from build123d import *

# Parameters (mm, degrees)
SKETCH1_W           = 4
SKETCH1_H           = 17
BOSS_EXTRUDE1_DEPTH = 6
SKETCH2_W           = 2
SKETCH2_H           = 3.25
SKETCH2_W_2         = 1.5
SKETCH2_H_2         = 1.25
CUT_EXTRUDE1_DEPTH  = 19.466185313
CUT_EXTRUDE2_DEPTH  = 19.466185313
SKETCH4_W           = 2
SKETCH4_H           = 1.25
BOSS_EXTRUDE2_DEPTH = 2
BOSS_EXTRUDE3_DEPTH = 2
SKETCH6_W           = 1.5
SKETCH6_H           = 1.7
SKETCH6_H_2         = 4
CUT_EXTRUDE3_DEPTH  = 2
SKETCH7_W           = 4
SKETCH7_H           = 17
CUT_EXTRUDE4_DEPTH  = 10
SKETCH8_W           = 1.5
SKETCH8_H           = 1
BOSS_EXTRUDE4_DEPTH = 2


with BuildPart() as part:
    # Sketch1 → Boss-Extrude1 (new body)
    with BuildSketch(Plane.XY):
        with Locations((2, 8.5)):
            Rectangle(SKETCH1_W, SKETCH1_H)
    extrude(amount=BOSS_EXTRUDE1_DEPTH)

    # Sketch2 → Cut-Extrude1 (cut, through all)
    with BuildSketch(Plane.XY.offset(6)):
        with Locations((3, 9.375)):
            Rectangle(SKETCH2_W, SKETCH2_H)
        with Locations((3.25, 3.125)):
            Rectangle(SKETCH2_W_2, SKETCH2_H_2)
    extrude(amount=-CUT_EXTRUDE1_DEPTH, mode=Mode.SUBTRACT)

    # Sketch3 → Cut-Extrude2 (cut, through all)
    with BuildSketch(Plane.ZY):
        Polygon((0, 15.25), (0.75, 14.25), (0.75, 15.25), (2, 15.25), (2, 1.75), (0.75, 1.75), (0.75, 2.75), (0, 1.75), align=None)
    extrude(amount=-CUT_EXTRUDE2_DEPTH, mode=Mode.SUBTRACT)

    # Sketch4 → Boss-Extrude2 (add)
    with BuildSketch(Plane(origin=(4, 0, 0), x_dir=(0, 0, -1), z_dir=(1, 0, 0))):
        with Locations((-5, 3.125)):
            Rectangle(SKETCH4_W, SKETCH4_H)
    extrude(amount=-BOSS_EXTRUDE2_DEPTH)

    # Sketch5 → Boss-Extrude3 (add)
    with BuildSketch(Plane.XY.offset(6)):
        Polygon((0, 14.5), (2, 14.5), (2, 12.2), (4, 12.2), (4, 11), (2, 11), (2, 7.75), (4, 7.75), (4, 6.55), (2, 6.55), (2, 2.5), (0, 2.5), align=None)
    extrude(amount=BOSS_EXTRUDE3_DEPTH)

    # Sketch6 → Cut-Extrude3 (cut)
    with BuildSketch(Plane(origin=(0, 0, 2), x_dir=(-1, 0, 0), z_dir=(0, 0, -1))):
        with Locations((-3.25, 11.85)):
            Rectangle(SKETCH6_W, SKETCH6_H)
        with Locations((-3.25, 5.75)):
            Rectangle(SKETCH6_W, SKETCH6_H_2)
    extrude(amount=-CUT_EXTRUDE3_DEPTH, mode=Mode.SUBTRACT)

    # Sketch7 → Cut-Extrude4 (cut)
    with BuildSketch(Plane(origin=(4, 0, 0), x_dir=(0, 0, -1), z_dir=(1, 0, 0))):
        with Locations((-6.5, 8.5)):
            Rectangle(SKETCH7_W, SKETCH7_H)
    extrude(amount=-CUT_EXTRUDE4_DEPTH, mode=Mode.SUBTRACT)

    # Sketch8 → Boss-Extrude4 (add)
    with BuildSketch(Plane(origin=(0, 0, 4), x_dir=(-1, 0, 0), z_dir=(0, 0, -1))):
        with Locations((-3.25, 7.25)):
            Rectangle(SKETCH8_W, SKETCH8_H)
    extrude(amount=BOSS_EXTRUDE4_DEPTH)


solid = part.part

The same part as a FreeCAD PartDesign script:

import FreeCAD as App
import Part
import Sketcher

V = App.Vector
Q = App.Units.Quantity

doc = App.newDocument("Part")
params = doc.addObject("Spreadsheet::Sheet", "Params")
for row, (alias, value) in enumerate([
    ("sketch1_width", "4 mm"),
    ("sketch1_height", "17 mm"),
    ("pad1_length", "6 mm"),
    ("sketch2_width", "2 mm"),
    ("sketch2_width2", "1.5 mm"),
    ("sketch2_height", "3.25 mm"),
    ("sketch2_height2", "1.25 mm"),
    ("sketch3_width", "1 mm"),
    ("sketch3_width2", "13.5 mm"),
    ("sketch3_height", "1.25 mm"),
    ("sketch4_height", "2 mm"),
    ("sketch4_width", "1.25 mm"),
    ("pad2_length", "2 mm"),
    ("sketch5_width", "2 mm"),
    ("sketch5_height", "12 mm"),
    ("sketch5_height2", "1.2 mm"),
    ("sketch5_height3", "2.3 mm"),
    ("sketch5_height4", "4.05 mm"),
    ("pad3_length", "2 mm"),
    ("sketch6_height", "4 mm"),
    ("sketch6_width", "1.5 mm"),
    ("sketch6_height2", "1.7 mm"),
    ("pocket3_length", "2 mm"),
    ("sketch7_width", "17 mm"),
    ("sketch7_height", "4 mm"),
    ("pocket4_length", "10 mm"),
    ("sketch8_height", "1 mm"),
    ("sketch8_width", "1.5 mm"),
    ("pad4_length", "2 mm"),
], start=1):
    params.set(f"A{row}", alias)
    params.set(f"B{row}", "=" + value)
    params.setAlias(f"B{row}", alias)

body = doc.addObject("PartDesign::Body", "Body")

# Sketch on XY plane
sketch1 = body.newObject("Sketcher::SketchObject", "Sketch")
sketch1.AttachmentSupport = (doc.getObject("XY_Plane"), [""])
sketch1.MapMode = "FlatFace"
sketch1.addGeometry([
    Part.LineSegment(V(0, 17, 0), V(0, 0, 0)),
    Part.LineSegment(V(0, 0, 0), V(4, 0, 0)),
    Part.LineSegment(V(4, 0, 0), V(4, 17, 0)),
    Part.LineSegment(V(4, 17, 0), V(0, 17, 0)),
], False)
sketch1.addConstraint([
    Sketcher.Constraint("Coincident", 0, 2, 1, 1),
    Sketcher.Constraint("Coincident", 1, 2, 2, 1),
    Sketcher.Constraint("Coincident", 2, 2, 3, 1),
    Sketcher.Constraint("Coincident", 3, 2, 0, 1),
    Sketcher.Constraint("Vertical", 0),
    Sketcher.Constraint("Horizontal", 1),
    Sketcher.Constraint("Vertical", 2),
    Sketcher.Constraint("Horizontal", 3),
    Sketcher.Constraint("Coincident", 0, 2, -1, 1),
    Sketcher.Constraint("DistanceX", 1, 1, 1, 2, Q("4 mm")),
    Sketcher.Constraint("DistanceY", 0, 2, 0, 1, Q("17 mm")),
])
sketch1.setExpression("Constraints[9]", "Params.sketch1_width")
sketch1.setExpression("Constraints[10]", "Params.sketch1_height")
pad1 = body.newObject("PartDesign::Pad", "Pad")
pad1.Profile = sketch1
pad1.setExpression("Length", "Params.pad1_length")

# Sketch on XY plane
sketch2 = body.newObject("Sketcher::SketchObject", "Sketch001")
sketch2.AttachmentSupport = (doc.getObject("XY_Plane"), [""])
sketch2.MapMode = "FlatFace"
sketch2.AttachmentOffset = App.Placement(V(0, 0, 6), App.Rotation())
sketch2.addGeometry([
    Part.LineSegment(V(2, 11, 0), V(2, 7.8, 0)),  # 0
    Part.LineSegment(V(2, 7.8, 0), V(4, 7.8, 0)),  # 1
    Part.LineSegment(V(4, 7.8, 0), V(4, 11, 0)),  # 2
    Part.LineSegment(V(4, 11, 0), V(2, 11, 0)),  # 3
    Part.LineSegment(V(2.5, 3.8, 0), V(2.5, 2.5, 0)),  # 4
    Part.LineSegment(V(2.5, 2.5, 0), V(4, 2.5, 0)),  # 5
    Part.LineSegment(V(4, 2.5, 0), V(4, 3.8, 0)),  # 6
    Part.LineSegment(V(4, 3.8, 0), V(2.5, 3.8, 0)),  # 7
], False)
sketch2.addConstraint([
    Sketcher.Constraint("Coincident", 0, 2, 1, 1),
    Sketcher.Constraint("Coincident", 1, 2, 2, 1),
    Sketcher.Constraint("Coincident", 2, 2, 3, 1),
    Sketcher.Constraint("Coincident", 3, 2, 0, 1),
    Sketcher.Constraint("Coincident", 4, 2, 5, 1),
    Sketcher.Constraint("Coincident", 5, 2, 6, 1),
    Sketcher.Constraint("Coincident", 6, 2, 7, 1),
    Sketcher.Constraint("Coincident", 7, 2, 4, 1),
    Sketcher.Constraint("Vertical", 0),
    Sketcher.Constraint("Horizontal", 1),
    Sketcher.Constraint("Vertical", 2),
    Sketcher.Constraint("Horizontal", 3),
    Sketcher.Constraint("Vertical", 4),
    Sketcher.Constraint("Horizontal", 5),
    Sketcher.Constraint("Vertical", 6),
    Sketcher.Constraint("Horizontal", 7),
    Sketcher.Constraint("Vertical", 2, 2, 5, 2),
    Sketcher.Constraint("DistanceX", 1, 1, 1, 2, Q("2 mm")),
    Sketcher.Constraint("DistanceX", 5, 1, 5, 2, Q("1.5 mm")),
    Sketcher.Constraint("DistanceX", -1, 1, 0, 2, Q("2 mm")),
    Sketcher.Constraint("DistanceY", -1, 1, 2, 2, Q("11 mm")),
    Sketcher.Constraint("DistanceY", 6, 2, 1, 2, Q("4 mm")),
    Sketcher.Constraint("DistanceY", 0, 2, 0, 1, Q("3.25 mm")),
    Sketcher.Constraint("DistanceY", 4, 2, 4, 1, Q("1.25 mm")),
])
sketch2.setExpression("Constraints[17]", "Params.sketch2_width")
sketch2.setExpression("Constraints[18]", "Params.sketch2_width2")
sketch2.setExpression("Constraints[22]", "Params.sketch2_height")
sketch2.setExpression("Constraints[23]", "Params.sketch2_height2")
pocket1 = body.newObject("PartDesign::Pocket", "Pocket")
pocket1.Profile = sketch2
pocket1.Type = "ThroughAll"

# Sketch on YZ plane
sketch3 = body.newObject("Sketcher::SketchObject", "Sketch002")
sketch3.AttachmentSupport = (doc.getObject("YZ_Plane"), [""])
sketch3.MapMode = "FlatFace"
sketch3.addGeometry([
    Part.LineSegment(V(14.2, 0.8, 0), V(15.2, 0, 0)),  # 0
    Part.LineSegment(V(15.2, 0, 0), V(1.8, 0, 0)),  # 1
    Part.LineSegment(V(1.8, 0, 0), V(2.8, 0.8, 0)),  # 2
    Part.LineSegment(V(2.8, 0.8, 0), V(1.8, 0.8, 0)),  # 3
    Part.LineSegment(V(1.8, 0.8, 0), V(1.8, 2, 0)),  # 4
    Part.LineSegment(V(1.8, 2, 0), V(15.2, 2, 0)),  # 5
    Part.LineSegment(V(15.2, 2, 0), V(15.2, 0.8, 0)),  # 6
    Part.LineSegment(V(15.2, 0.8, 0), V(14.2, 0.8, 0)),  # 7
], False)
sketch3.addConstraint([
    Sketcher.Constraint("Coincident", 0, 2, 1, 1),
    Sketcher.Constraint("Coincident", 1, 2, 2, 1),
    Sketcher.Constraint("Coincident", 2, 2, 3, 1),
    Sketcher.Constraint("Coincident", 3, 2, 4, 1),
    Sketcher.Constraint("Coincident", 4, 2, 5, 1),
    Sketcher.Constraint("Coincident", 5, 2, 6, 1),
    Sketcher.Constraint("Coincident", 6, 2, 7, 1),
    Sketcher.Constraint("Coincident", 7, 2, 0, 1),
    Sketcher.Constraint("Horizontal", 1),
    Sketcher.Constraint("Horizontal", 3),
    Sketcher.Constraint("Vertical", 4),
    Sketcher.Constraint("Horizontal", 5),
    Sketcher.Constraint("Vertical", 6),
    Sketcher.Constraint("Horizontal", 7),
    Sketcher.Constraint("PointOnObject", 0, 2, -1),
    Sketcher.Constraint("Horizontal", 3, 2, 6, 2),
    Sketcher.Constraint("Vertical", 1, 2, 3, 2),
    Sketcher.Constraint("Vertical", 0, 2, 5, 2),
    Sketcher.Constraint("Equal", 3, 7),
    Sketcher.Constraint("DistanceX", 3, 2, 3, 1, Q("1 mm")),
    Sketcher.Constraint("DistanceX", 1, 2, 1, 1, Q("13.5 mm")),
    Sketcher.Constraint("DistanceY", -1, 1, 4, 2, Q("2 mm")),
    Sketcher.Constraint("DistanceY", 4, 1, 4, 2, Q("1.25 mm")),
    Sketcher.Constraint("DistanceX", -1, 1, 0, 2, Q("15.25 mm")),
])
sketch3.setExpression("Constraints[19]", "Params.sketch3_width")
sketch3.setExpression("Constraints[20]", "Params.sketch3_width2")
sketch3.setExpression("Constraints[22]", "Params.sketch3_height")
pocket2 = body.newObject("PartDesign::Pocket", "Pocket001")
pocket2.Profile = sketch3
pocket2.Type = "ThroughAll"
pocket2.Reversed = True

# Sketch on YZ plane
sketch4 = body.newObject("Sketcher::SketchObject", "Sketch003")
sketch4.AttachmentSupport = (doc.getObject("YZ_Plane"), [""])
sketch4.MapMode = "FlatFace"
sketch4.AttachmentOffset = App.Placement(V(0, 0, 4), App.Rotation())
sketch4.addGeometry([
    Part.LineSegment(V(3.8, 6, 0), V(2.5, 6, 0)),
    Part.LineSegment(V(2.5, 6, 0), V(2.5, 4, 0)),
    Part.LineSegment(V(2.5, 4, 0), V(3.8, 4, 0)),
    Part.LineSegment(V(3.8, 4, 0), V(3.8, 6, 0)),
], False)
sketch4.addConstraint([
    Sketcher.Constraint("Coincident", 0, 2, 1, 1),
    Sketcher.Constraint("Coincident", 1, 2, 2, 1),
    Sketcher.Constraint("Coincident", 2, 2, 3, 1),
    Sketcher.Constraint("Coincident", 3, 2, 0, 1),
    Sketcher.Constraint("Horizontal", 0),
    Sketcher.Constraint("Vertical", 1),
    Sketcher.Constraint("Horizontal", 2),
    Sketcher.Constraint("Vertical", 3),
    Sketcher.Constraint("DistanceY", 1, 2, 1, 1, Q("2 mm")),
    Sketcher.Constraint("DistanceY", -1, 1, 0, 2, Q("6 mm")),
    Sketcher.Constraint("DistanceX", 0, 2, 0, 1, Q("1.25 mm")),
    Sketcher.Constraint("DistanceX", -1, 1, 0, 2, Q("2.5 mm")),
])
sketch4.setExpression("Constraints[8]", "Params.sketch4_height")
sketch4.setExpression("Constraints[10]", "Params.sketch4_width")
pad2 = body.newObject("PartDesign::Pad", "Pad001")
pad2.Profile = sketch4
pad2.setExpression("Length", "Params.pad2_length")
pad2.Reversed = True

# Sketch on XY plane
sketch5 = body.newObject("Sketcher::SketchObject", "Sketch004")
sketch5.AttachmentSupport = (doc.getObject("XY_Plane"), [""])
sketch5.MapMode = "FlatFace"
sketch5.AttachmentOffset = App.Placement(V(0, 0, 6), App.Rotation())
sketch5.addGeometry([
    Part.LineSegment(V(2, 14.5, 0), V(0, 14.5, 0)),  # 0
    Part.LineSegment(V(0, 14.5, 0), V(0, 2.5, 0)),  # 1
    Part.LineSegment(V(0, 2.5, 0), V(2, 2.5, 0)),  # 2
    Part.LineSegment(V(2, 2.5, 0), V(2, 6.5, 0)),  # 3
    Part.LineSegment(V(2, 6.5, 0), V(4, 6.5, 0)),  # 4
    Part.LineSegment(V(4, 6.5, 0), V(4, 7.8, 0)),  # 5
    Part.LineSegment(V(4, 7.8, 0), V(2, 7.8, 0)),  # 6
    Part.LineSegment(V(2, 7.8, 0), V(2, 11, 0)),  # 7
    Part.LineSegment(V(2, 11, 0), V(4, 11, 0)),  # 8
    Part.LineSegment(V(4, 11, 0), V(4, 12.2, 0)),  # 9
    Part.LineSegment(V(4, 12.2, 0), V(2, 12.2, 0)),  # 10
    Part.LineSegment(V(2, 12.2, 0), V(2, 14.5, 0)),  # 11
], False)
sketch5.addConstraint([
    Sketcher.Constraint("Coincident", 0, 2, 1, 1),
    Sketcher.Constraint("Coincident", 1, 2, 2, 1),
    Sketcher.Constraint("Coincident", 2, 2, 3, 1),
    Sketcher.Constraint("Coincident", 3, 2, 4, 1),
    Sketcher.Constraint("Coincident", 4, 2, 5, 1),
    Sketcher.Constraint("Coincident", 5, 2, 6, 1),
    Sketcher.Constraint("Coincident", 6, 2, 7, 1),
    Sketcher.Constraint("Coincident", 7, 2, 8, 1),
    Sketcher.Constraint("Coincident", 8, 2, 9, 1),
    Sketcher.Constraint("Coincident", 9, 2, 10, 1),
    Sketcher.Constraint("Coincident", 10, 2, 11, 1),
    Sketcher.Constraint("Coincident", 11, 2, 0, 1),
    Sketcher.Constraint("Horizontal", 0),
    Sketcher.Constraint("Vertical", 1),
    Sketcher.Constraint("Horizontal", 2),
    Sketcher.Constraint("Vertical", 3),
    Sketcher.Constraint("Horizontal", 4),
    Sketcher.Constraint("Vertical", 5),
    Sketcher.Constraint("Horizontal", 6),
    Sketcher.Constraint("Vertical", 7),
    Sketcher.Constraint("Horizontal", 8),
    Sketcher.Constraint("Vertical", 9),
    Sketcher.Constraint("Horizontal", 10),
    Sketcher.Constraint("Vertical", 11),
    Sketcher.Constraint("PointOnObject", 0, 2, -2),
    Sketcher.Constraint("Vertical", 3, 2, 6, 2),
    Sketcher.Constraint("Vertical", 5, 2, 8, 2),
    Sketcher.Constraint("Vertical", 7, 2, 10, 2),
    Sketcher.Constraint("Equal", 2, 4),
    Sketcher.Constraint("Equal", 5, 9),
    Sketcher.Constraint("DistanceX", 0, 2, 0, 1, Q("2 mm")),
    Sketcher.Constraint("DistanceY", 1, 2, 1, 1, Q("12 mm")),
    Sketcher.Constraint("DistanceY", 5, 1, 5, 2, Q("1.2 mm")),
    Sketcher.Constraint("DistanceY", 11, 1, 11, 2, Q("2.3 mm")),
    Sketcher.Constraint("DistanceY", -1, 1, 7, 2, Q("11 mm")),
    Sketcher.Constraint("DistanceY", 3, 1, 3, 2, Q("4.05 mm")),
])
sketch5.setExpression("Constraints[30]", "Params.sketch5_width")
sketch5.setExpression("Constraints[31]", "Params.sketch5_height")
sketch5.setExpression("Constraints[32]", "Params.sketch5_height2")
sketch5.setExpression("Constraints[33]", "Params.sketch5_height3")
sketch5.setExpression("Constraints[35]", "Params.sketch5_height4")
pad3 = body.newObject("PartDesign::Pad", "Pad002")
pad3.Profile = sketch5
pad3.setExpression("Length", "Params.pad3_length")

# Sketch on XY plane
sketch6 = body.newObject("Sketcher::SketchObject", "Sketch005")
sketch6.AttachmentSupport = (doc.getObject("XY_Plane"), [""])
sketch6.MapMode = "FlatFace"
sketch6.AttachmentOffset = App.Placement(V(0, 0, 2), App.Rotation())
sketch6.addGeometry([
    Part.LineSegment(V(4, 12.7, 0), V(4, 11, 0)),  # 0
    Part.LineSegment(V(4, 11, 0), V(2.5, 11, 0)),  # 1
    Part.LineSegment(V(2.5, 11, 0), V(2.5, 12.7, 0)),  # 2
    Part.LineSegment(V(2.5, 12.7, 0), V(4, 12.7, 0)),  # 3
    Part.LineSegment(V(4, 7.8, 0), V(4, 3.8, 0)),  # 4
    Part.LineSegment(V(4, 3.8, 0), V(2.5, 3.8, 0)),  # 5
    Part.LineSegment(V(2.5, 3.8, 0), V(2.5, 7.8, 0)),  # 6
    Part.LineSegment(V(2.5, 7.8, 0), V(4, 7.8, 0)),  # 7
], False)
sketch6.addConstraint([
    Sketcher.Constraint("Coincident", 0, 2, 1, 1),
    Sketcher.Constraint("Coincident", 1, 2, 2, 1),
    Sketcher.Constraint("Coincident", 2, 2, 3, 1),
    Sketcher.Constraint("Coincident", 3, 2, 0, 1),
    Sketcher.Constraint("Coincident", 4, 2, 5, 1),
    Sketcher.Constraint("Coincident", 5, 2, 6, 1),
    Sketcher.Constraint("Coincident", 6, 2, 7, 1),
    Sketcher.Constraint("Coincident", 7, 2, 4, 1),
    Sketcher.Constraint("Vertical", 0),
    Sketcher.Constraint("Horizontal", 1),
    Sketcher.Constraint("Vertical", 2),
    Sketcher.Constraint("Horizontal", 3),
    Sketcher.Constraint("Vertical", 4),
    Sketcher.Constraint("Horizontal", 5),
    Sketcher.Constraint("Vertical", 6),
    Sketcher.Constraint("Horizontal", 7),
    Sketcher.Constraint("Vertical", 3, 2, 4, 2),
    Sketcher.Constraint("Vertical", 2, 2, 5, 2),
    Sketcher.Constraint("DistanceY", 4, 2, 4, 1, Q("4 mm")),
    Sketcher.Constraint("DistanceX", 1, 2, 1, 1, Q("1.5 mm")),
    Sketcher.Constraint("DistanceY", 0, 2, 0, 1, Q("1.7 mm")),
    Sketcher.Constraint("DistanceX", -1, 1, 0, 2, Q("4 mm")),
    Sketcher.Constraint("DistanceY", -1, 1, 0, 2, Q("11 mm")),
    Sketcher.Constraint("DistanceY", -1, 1, 4, 2, Q("3.75 mm")),
])
sketch6.setExpression("Constraints[18]", "Params.sketch6_height")
sketch6.setExpression("Constraints[19]", "Params.sketch6_width")
sketch6.setExpression("Constraints[20]", "Params.sketch6_height2")
pocket3 = body.newObject("PartDesign::Pocket", "Pocket002")
pocket3.Profile = sketch6
pocket3.setExpression("Length", "Params.pocket3_length")
pocket3.Reversed = True

# Sketch on YZ plane
sketch7 = body.newObject("Sketcher::SketchObject", "Sketch006")
sketch7.AttachmentSupport = (doc.getObject("YZ_Plane"), [""])
sketch7.MapMode = "FlatFace"
sketch7.AttachmentOffset = App.Placement(V(0, 0, 4), App.Rotation())
sketch7.addGeometry([
    Part.LineSegment(V(17, 8.5, 0), V(0, 8.5, 0)),
    Part.LineSegment(V(0, 8.5, 0), V(0, 4.5, 0)),
    Part.LineSegment(V(0, 4.5, 0), V(17, 4.5, 0)),
    Part.LineSegment(V(17, 4.5, 0), V(17, 8.5, 0)),
], False)
sketch7.addConstraint([
    Sketcher.Constraint("Coincident", 0, 2, 1, 1),
    Sketcher.Constraint("Coincident", 1, 2, 2, 1),
    Sketcher.Constraint("Coincident", 2, 2, 3, 1),
    Sketcher.Constraint("Coincident", 3, 2, 0, 1),
    Sketcher.Constraint("Horizontal", 0),
    Sketcher.Constraint("Vertical", 1),
    Sketcher.Constraint("Horizontal", 2),
    Sketcher.Constraint("Vertical", 3),
    Sketcher.Constraint("PointOnObject", 0, 2, -2),
    Sketcher.Constraint("DistanceX", 0, 2, 0, 1, Q("17 mm")),
    Sketcher.Constraint("DistanceY", 1, 2, 1, 1, Q("4 mm")),
    Sketcher.Constraint("DistanceY", -1, 1, 0, 2, Q("8.5 mm")),
])
sketch7.setExpression("Constraints[9]", "Params.sketch7_width")
sketch7.setExpression("Constraints[10]", "Params.sketch7_height")
pocket4 = body.newObject("PartDesign::Pocket", "Pocket003")
pocket4.Profile = sketch7
pocket4.setExpression("Length", "Params.pocket4_length")

# Sketch on XY plane
sketch8 = body.newObject("Sketcher::SketchObject", "Sketch007")
sketch8.AttachmentSupport = (doc.getObject("XY_Plane"), [""])
sketch8.MapMode = "FlatFace"
sketch8.AttachmentOffset = App.Placement(V(0, 0, 4), App.Rotation())
sketch8.addGeometry([
    Part.LineSegment(V(4, 7.8, 0), V(4, 6.8, 0)),
    Part.LineSegment(V(4, 6.8, 0), V(2.5, 6.8, 0)),
    Part.LineSegment(V(2.5, 6.8, 0), V(2.5, 7.8, 0)),
    Part.LineSegment(V(2.5, 7.8, 0), V(4, 7.8, 0)),
], False)
sketch8.addConstraint([
    Sketcher.Constraint("Coincident", 0, 2, 1, 1),
    Sketcher.Constraint("Coincident", 1, 2, 2, 1),
    Sketcher.Constraint("Coincident", 2, 2, 3, 1),
    Sketcher.Constraint("Coincident", 3, 2, 0, 1),
    Sketcher.Constraint("Vertical", 0),
    Sketcher.Constraint("Horizontal", 1),
    Sketcher.Constraint("Vertical", 2),
    Sketcher.Constraint("Horizontal", 3),
    Sketcher.Constraint("DistanceY", 0, 2, 0, 1, Q("1 mm")),
    Sketcher.Constraint("DistanceX", 1, 2, 1, 1, Q("1.5 mm")),
    Sketcher.Constraint("DistanceX", -1, 1, 0, 2, Q("4 mm")),
    Sketcher.Constraint("DistanceY", -1, 1, 0, 2, Q("6.75 mm")),
])
sketch8.setExpression("Constraints[8]", "Params.sketch8_height")
sketch8.setExpression("Constraints[9]", "Params.sketch8_width")
pad4 = body.newObject("PartDesign::Pad", "Pad003")
pad4.Profile = sketch8
pad4.setExpression("Length", "Params.pad4_length")
pad4.Reversed = True

doc.recompute()
